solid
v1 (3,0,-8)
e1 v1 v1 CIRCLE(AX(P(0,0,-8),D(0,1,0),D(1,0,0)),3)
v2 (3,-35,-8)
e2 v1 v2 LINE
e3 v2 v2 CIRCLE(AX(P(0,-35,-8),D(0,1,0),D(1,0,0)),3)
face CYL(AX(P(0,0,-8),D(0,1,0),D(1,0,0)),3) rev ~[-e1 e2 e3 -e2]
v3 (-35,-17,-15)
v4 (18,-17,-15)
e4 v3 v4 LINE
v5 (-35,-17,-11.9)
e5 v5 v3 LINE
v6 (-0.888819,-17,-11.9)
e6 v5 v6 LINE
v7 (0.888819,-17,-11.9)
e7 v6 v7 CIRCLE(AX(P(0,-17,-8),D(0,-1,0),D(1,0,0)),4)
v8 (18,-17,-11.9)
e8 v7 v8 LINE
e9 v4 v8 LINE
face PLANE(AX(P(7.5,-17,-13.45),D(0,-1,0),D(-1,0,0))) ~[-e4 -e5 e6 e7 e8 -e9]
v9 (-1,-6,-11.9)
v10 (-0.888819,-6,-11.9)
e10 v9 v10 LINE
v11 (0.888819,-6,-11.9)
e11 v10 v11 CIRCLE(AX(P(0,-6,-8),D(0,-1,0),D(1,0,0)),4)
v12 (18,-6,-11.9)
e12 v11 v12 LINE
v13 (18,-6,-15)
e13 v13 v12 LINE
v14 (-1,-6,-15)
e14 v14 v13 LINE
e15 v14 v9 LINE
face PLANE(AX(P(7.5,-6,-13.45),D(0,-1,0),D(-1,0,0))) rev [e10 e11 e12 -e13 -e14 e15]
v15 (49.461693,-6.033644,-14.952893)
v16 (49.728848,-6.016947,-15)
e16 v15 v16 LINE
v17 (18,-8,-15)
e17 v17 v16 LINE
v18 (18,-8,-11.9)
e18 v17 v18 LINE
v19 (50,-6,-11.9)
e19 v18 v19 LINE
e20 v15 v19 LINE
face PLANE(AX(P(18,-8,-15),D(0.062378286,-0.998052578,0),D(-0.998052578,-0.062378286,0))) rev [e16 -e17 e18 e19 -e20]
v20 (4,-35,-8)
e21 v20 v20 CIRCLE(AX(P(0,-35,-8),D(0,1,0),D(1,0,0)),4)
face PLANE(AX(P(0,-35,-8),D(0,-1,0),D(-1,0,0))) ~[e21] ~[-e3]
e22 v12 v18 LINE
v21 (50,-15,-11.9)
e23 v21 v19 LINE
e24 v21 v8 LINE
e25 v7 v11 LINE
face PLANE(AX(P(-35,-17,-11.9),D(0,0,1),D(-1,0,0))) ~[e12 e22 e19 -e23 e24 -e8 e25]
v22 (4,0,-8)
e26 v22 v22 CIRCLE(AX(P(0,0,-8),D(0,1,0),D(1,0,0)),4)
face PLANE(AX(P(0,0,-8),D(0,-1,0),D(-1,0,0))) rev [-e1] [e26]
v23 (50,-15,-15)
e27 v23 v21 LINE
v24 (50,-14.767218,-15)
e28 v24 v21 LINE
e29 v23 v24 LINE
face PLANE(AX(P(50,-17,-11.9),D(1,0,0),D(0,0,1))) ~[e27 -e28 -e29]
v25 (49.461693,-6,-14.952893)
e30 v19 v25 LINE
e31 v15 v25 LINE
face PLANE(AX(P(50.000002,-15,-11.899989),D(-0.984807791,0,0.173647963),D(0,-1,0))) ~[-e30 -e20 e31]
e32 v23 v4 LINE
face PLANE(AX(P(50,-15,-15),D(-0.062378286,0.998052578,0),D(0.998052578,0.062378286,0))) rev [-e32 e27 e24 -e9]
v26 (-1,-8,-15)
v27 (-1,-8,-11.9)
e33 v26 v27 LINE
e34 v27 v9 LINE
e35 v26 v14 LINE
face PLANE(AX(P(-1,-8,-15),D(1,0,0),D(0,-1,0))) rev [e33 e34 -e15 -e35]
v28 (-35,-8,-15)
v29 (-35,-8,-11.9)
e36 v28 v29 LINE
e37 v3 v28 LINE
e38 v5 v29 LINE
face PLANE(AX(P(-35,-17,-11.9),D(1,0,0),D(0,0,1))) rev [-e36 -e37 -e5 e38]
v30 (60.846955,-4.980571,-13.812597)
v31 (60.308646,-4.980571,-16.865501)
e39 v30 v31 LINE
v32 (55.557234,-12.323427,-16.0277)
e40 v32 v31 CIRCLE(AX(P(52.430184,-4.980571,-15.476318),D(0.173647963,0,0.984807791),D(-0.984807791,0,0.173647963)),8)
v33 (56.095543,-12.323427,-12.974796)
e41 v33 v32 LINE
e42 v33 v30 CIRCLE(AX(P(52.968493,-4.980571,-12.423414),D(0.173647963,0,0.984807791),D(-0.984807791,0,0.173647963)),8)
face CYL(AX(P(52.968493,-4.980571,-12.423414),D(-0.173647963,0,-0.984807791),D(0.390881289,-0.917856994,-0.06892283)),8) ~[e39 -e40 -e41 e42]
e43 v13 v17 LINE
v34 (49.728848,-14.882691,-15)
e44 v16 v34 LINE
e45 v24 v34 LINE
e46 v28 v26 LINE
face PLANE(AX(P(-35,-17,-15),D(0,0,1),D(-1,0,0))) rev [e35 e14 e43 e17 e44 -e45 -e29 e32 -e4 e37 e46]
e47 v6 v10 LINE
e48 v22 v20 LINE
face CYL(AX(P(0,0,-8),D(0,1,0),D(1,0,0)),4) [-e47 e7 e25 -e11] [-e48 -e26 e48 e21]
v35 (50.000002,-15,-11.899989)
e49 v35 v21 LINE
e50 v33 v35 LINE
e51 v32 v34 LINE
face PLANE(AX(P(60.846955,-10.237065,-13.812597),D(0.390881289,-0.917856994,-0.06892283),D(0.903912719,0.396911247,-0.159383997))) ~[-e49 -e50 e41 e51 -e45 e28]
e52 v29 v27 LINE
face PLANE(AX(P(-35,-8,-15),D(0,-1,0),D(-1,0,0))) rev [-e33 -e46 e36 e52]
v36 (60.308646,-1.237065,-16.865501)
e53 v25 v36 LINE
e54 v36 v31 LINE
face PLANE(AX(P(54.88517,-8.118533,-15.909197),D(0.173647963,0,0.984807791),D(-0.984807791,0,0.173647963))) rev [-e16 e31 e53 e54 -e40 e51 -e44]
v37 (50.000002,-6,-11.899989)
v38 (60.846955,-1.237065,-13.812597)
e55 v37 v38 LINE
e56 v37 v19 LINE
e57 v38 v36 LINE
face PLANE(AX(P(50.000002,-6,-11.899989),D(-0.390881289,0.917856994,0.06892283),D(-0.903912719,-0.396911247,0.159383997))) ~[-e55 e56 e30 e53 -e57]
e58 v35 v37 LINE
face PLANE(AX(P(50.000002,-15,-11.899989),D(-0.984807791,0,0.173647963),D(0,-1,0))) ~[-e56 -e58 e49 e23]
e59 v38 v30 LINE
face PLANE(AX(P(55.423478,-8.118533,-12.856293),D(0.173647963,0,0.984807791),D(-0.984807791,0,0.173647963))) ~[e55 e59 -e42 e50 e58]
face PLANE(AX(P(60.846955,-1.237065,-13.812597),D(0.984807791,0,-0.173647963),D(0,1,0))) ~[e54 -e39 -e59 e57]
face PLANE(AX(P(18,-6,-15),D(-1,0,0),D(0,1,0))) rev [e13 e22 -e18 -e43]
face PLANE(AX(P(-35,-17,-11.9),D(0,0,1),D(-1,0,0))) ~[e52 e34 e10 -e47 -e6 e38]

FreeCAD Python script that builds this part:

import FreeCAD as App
import Part
import Sketcher
from FreeCAD import Vector


def edges_at(feature, points):
    """Names of the edges that pass closest to the given points."""
    edges = feature.Shape.Edges
    near = lambda p: min(range(len(edges)), key=lambda i: edges[i].distToShape(Part.Vertex(*p))[0])
    return sorted({f"Edge{near(p) + 1}" for p in points})

doc = App.newDocument("Part")
params = doc.addObject("Spreadsheet::Sheet", "Params")
for row, (alias, value) in enumerate([
    ("sketch1_diameter", "8 mm"),
    ("sketch1_diameter2", "6 mm"),
    ("pad1_length", "35 mm"),
    ("sketch2_width", "85 mm"),
    ("sketch2_height", "3.1 mm"),
    ("pad2_length", "11 mm"),
    ("sketch3_width", "34 mm"),
    ("sketch3_width2", "32 mm"),
    ("sketch3_height", "2 mm"),
    ("pocket1_length", "3.1 mm"),
    ("sketch4_height", "9 mm"),
    ("sketch4_length", "12 mm"),
    ("pad3_length", "3.1 mm"),
    ("fillet_radius", "8 mm"),
], start=1):
    params.set(f"A{row}", alias)
    params.set(f"B{row}", "=" + value)
    params.setAlias(f"B{row}", alias)

body = doc.addObject("PartDesign::Body", "Body")

sketch1 = body.newObject("Sketcher::SketchObject", "Sketch")
sketch1.AttachmentSupport = (doc.getObject("XZ_Plane"), [""])
sketch1.MapMode = "FlatFace"
sketch1.addGeometry(Part.Circle(Vector(0, 0, 0), Vector(0, 0, 1), 4), False)
sketch1.addGeometry(Part.Circle(Vector(0, 0, 0), Vector(0, 0, 1), 3), False)
sketch1.addConstraint(Sketcher.Constraint("Coincident", 0, 3, -1, 1))
sketch1.addConstraint(Sketcher.Constraint("Coincident", 1, 3, -1, 1))
sketch1.addConstraint(Sketcher.Constraint("Diameter", 0, 8.0))
sketch1.addConstraint(Sketcher.Constraint("Diameter", 1, 6.0))
sketch1.setExpression("Constraints[2]", "Params.sketch1_diameter")
sketch1.setExpression("Constraints[3]", "Params.sketch1_diameter2")
pad1 = body.newObject("PartDesign::Pad", "Pad")
pad1.Profile = sketch1
pad1.setExpression("Length", "Params.pad1_length")

sketch2 = body.newObject("Sketcher::SketchObject", "Sketch001")
sketch2.AttachmentSupport = (doc.getObject("XZ_Plane"), [""])
sketch2.MapMode = "FlatFace"
sketch2.AttachmentOffset = App.Placement(Vector(0, 0, 17), App.Rotation())
sketch2.addGeometry(Part.LineSegment(Vector(-35, 7, 0), Vector(-35, 3.9, 0)), False)
sketch2.addGeometry(Part.LineSegment(Vector(-35, 3.9, 0), Vector(50, 3.9, 0)), False)
sketch2.addGeometry(Part.LineSegment(Vector(50, 3.9, 0), Vector(50, 7, 0)), False)
sketch2.addGeometry(Part.LineSegment(Vector(50, 7, 0), Vector(-35, 7, 0)), False)
sketch2.addConstraint(Sketcher.Constraint("Coincident", 0, 2, 1, 1))
sketch2.addConstraint(Sketcher.Constraint("Coincident", 1, 2, 2, 1))
sketch2.addConstraint(Sketcher.Constraint("Coincident", 2, 2, 3, 1))
sketch2.addConstraint(Sketcher.Constraint("Coincident", 3, 2, 0, 1))
sketch2.addConstraint(Sketcher.Constraint("Vertical", 0))
sketch2.addConstraint(Sketcher.Constraint("Horizontal", 1))
sketch2.addConstraint(Sketcher.Constraint("Vertical", 2))
sketch2.addConstraint(Sketcher.Constraint("Horizontal", 3))
sketch2.addConstraint(Sketcher.Constraint("DistanceX", 1, 1, 1, 2, 85.0))
sketch2.addConstraint(Sketcher.Constraint("DistanceY", 0, 2, 0, 1, 3.1))
sketch2.addConstraint(Sketcher.Constraint("DistanceX", 0, 2, -1, 1, 35.0))
sketch2.addConstraint(Sketcher.Constraint("DistanceY", -1, 1, 2, 2, 7.0))
sketch2.setExpression("Constraints[8]", "Params.sketch2_width")
sketch2.setExpression("Constraints[9]", "Params.sketch2_height")
pad2 = body.newObject("PartDesign::Pad", "Pad001")
pad2.Profile = sketch2
pad2.setExpression("Length", "Params.pad2_length")
pad2.Reversed = True

sketch3 = body.newObject("Sketcher::SketchObject", "Sketch002")
sketch3.AttachmentSupport = (doc.getObject("XY_Plane"), [""])
sketch3.MapMode = "FlatFace"
sketch3.AttachmentOffset = App.Placement(Vector(0, 0, 7), App.Rotation())
sketch3.addGeometry(Part.LineSegment(Vector(-35, -6, 0), Vector(-35, -8, 0)), False)
sketch3.addGeometry(Part.LineSegment(Vector(-35, -8, 0), Vector(-1, -8, 0)), False)
sketch3.addGeometry(Part.LineSegment(Vector(-1, -8, 0), Vector(-1, -6, 0)), False)
sketch3.addGeometry(Part.LineSegment(Vector(-1, -6, 0), Vector(-35, -6, 0)), False)
sketch3.addGeometry(Part.LineSegment(Vector(50, -6, 0), Vector(18, -6, 0)), False)
sketch3.addGeometry(Part.LineSegment(Vector(18, -6, 0), Vector(18, -8, 0)), False)
sketch3.addGeometry(Part.LineSegment(Vector(18, -8, 0), Vector(50, -6, 0)), False)
sketch3.addGeometry(Part.LineSegment(Vector(50, -15, 0), Vector(18, -17, 0)), False)
sketch3.addGeometry(Part.LineSegment(Vector(18, -17, 0), Vector(50, -17, 0)), False)
sketch3.addGeometry(Part.LineSegment(Vector(50, -17, 0), Vector(50, -15, 0)), False)
sketch3.addConstraint(Sketcher.Constraint("Coincident", 0, 2, 1, 1))
sketch3.addConstraint(Sketcher.Constraint("Coincident", 1, 2, 2, 1))
sketch3.addConstraint(Sketcher.Constraint("Coincident", 2, 2, 3, 1))
sketch3.addConstraint(Sketcher.Constraint("Coincident", 3, 2, 0, 1))
sketch3.addConstraint(Sketcher.Constraint("Coincident", 4, 2, 5, 1))
sketch3.addConstraint(Sketcher.Constraint("Coincident", 5, 2, 6, 1))
sketch3.addConstraint(Sketcher.Constraint("Coincident", 6, 2, 4, 1))
sketch3.addConstraint(Sketcher.Constraint("Coincident", 7, 2, 8, 1))
sketch3.addConstraint(Sketcher.Constraint("Coincident", 8, 2, 9, 1))
sketch3.addConstraint(Sketcher.Constraint("Coincident", 9, 2, 7, 1))
sketch3.addConstraint(Sketcher.Constraint("Vertical", 0))
sketch3.addConstraint(Sketcher.Constraint("Horizontal", 1))
sketch3.addConstraint(Sketcher.Constraint("Vertical", 2))
sketch3.addConstraint(Sketcher.Constraint("Horizontal", 3))
sketch3.addConstraint(Sketcher.Constraint("Horizontal", 4))
sketch3.addConstraint(Sketcher.Constraint("Vertical", 5))
sketch3.addConstraint(Sketcher.Constraint("Horizontal", 8))
sketch3.addConstraint(Sketcher.Constraint("Vertical", 9))
sketch3.addConstraint(Sketcher.Constraint("Parallel", 6, 7))
sketch3.addConstraint(Sketcher.Constraint("Horizontal", 3, 2, 4, 2))
sketch3.addConstraint(Sketcher.Constraint("Horizontal", 1, 2, 5, 2))
sketch3.addConstraint(Sketcher.Constraint("Vertical", 5, 2, 7, 2))
sketch3.addConstraint(Sketcher.Constraint("Vertical", 6, 2, 8, 2))
sketch3.addConstraint(Sketcher.Constraint("DistanceX", 1, 1, 1, 2, 34.0))
sketch3.addConstraint(Sketcher.Constraint("DistanceX", 4, 2, 4, 1, 32.0))
sketch3.addConstraint(Sketcher.Constraint("DistanceY", 0, 2, 0, 1, 2.0))
sketch3.addConstraint(Sketcher.Constraint("DistanceX", 0, 2, -1, 1, 35.0))
sketch3.addConstraint(Sketcher.Constraint("DistanceY", 0, 2, -1, 1, 8.0))
sketch3.addConstraint(Sketcher.Constraint("DistanceX", -1, 1, 4, 2, 18.0))
sketch3.addConstraint(Sketcher.Constraint("DistanceY", 7, 2, -1, 1, 17.0))
sketch3.setExpression("Constraints[23]", "Params.sketch3_width")
sketch3.setExpression("Constraints[24]", "Params.sketch3_width2")
sketch3.setExpression("Constraints[25]", "Params.sketch3_height")
pocket1 = body.newObject("PartDesign::Pocket", "Pocket")
pocket1.Profile = sketch3
pocket1.setExpression("Length", "Params.pocket1_length")

sketch4 = body.newObject("Sketcher::SketchObject", "Sketch003")
sketch4.Placement = App.Placement(Vector(0.840745, 0, -4.768103), App.Rotation(Vector(0.984807791, 0, 0.173647963), Vector(0, -1, 0), Vector(0.173647963, 0, -0.984807791), "ZXY"))
sketch4.addGeometry(Part.LineSegment(Vector(61, 10, 0), Vector(50, 15, 0)), False)
sketch4.addGeometry(Part.LineSegment(Vector(50, 15, 0), Vector(50, 6, 0)), False)
sketch4.addGeometry(Part.LineSegment(Vector(50, 6, 0), Vector(61, 1, 0)), False)
sketch4.addGeometry(Part.LineSegment(Vector(61, 1, 0), Vector(61, 10, 0)), False)
sketch4.addConstraint(Sketcher.Constraint("Coincident", 0, 2, 1, 1))
sketch4.addConstraint(Sketcher.Constraint("Coincident", 1, 2, 2, 1))
sketch4.addConstraint(Sketcher.Constraint("Coincident", 2, 2, 3, 1))
sketch4.addConstraint(Sketcher.Constraint("Coincident", 3, 2, 0, 1))
sketch4.addConstraint(Sketcher.Constraint("Vertical", 1))
sketch4.addConstraint(Sketcher.Constraint("Vertical", 3))
sketch4.addConstraint(Sketcher.Constraint("Parallel", 0, 2))
sketch4.addConstraint(Sketcher.Constraint("DistanceY", 1, 2, 1, 1, 9.0))
sketch4.addConstraint(Sketcher.Constraint("Distance", 0, 12.0))
sketch4.addConstraint(Sketcher.Constraint("DistanceY", -1, 1, 0, 2, 15.0))
sketch4.addConstraint(Sketcher.Constraint("DistanceX", -1, 1, 2, 2, 60.9319))
sketch4.addConstraint(Sketcher.Constraint("DistanceX", -1, 1, 0, 2, 49.917616))
sketch4.setExpression("Constraints[7]", "Params.sketch4_height")
sketch4.setExpression("Constraints[8]", "Params.sketch4_length")
pad3 = body.newObject("PartDesign::Pad", "Pad002")
pad3.Profile = sketch4
pad3.setExpression("Length", "Params.pad3_length")
pad3.Reversed = True
doc.recompute()

fillet = body.newObject("PartDesign::Fillet", "Fillet")
fillet.Base = (pad3, edges_at(pad3, [(60.578, -10.237, 7.339)]))
fillet.setExpression("Radius", "Params.fillet_radius")
body2 = doc.addObject("PartDesign::Body", "Body001")
doc.recompute()

mirroring = doc.addObject("Part::Mirroring", "Mirroring")
mirroring.Source = body
mirroring.Base = Vector(0, 0, -4)
mirroring.Normal = Vector(0, 0, 1)
body2.BaseFeature = mirroring
doc.recompute()
body.Visibility = False
mirroring.Visibility = False

doc.recompute()
